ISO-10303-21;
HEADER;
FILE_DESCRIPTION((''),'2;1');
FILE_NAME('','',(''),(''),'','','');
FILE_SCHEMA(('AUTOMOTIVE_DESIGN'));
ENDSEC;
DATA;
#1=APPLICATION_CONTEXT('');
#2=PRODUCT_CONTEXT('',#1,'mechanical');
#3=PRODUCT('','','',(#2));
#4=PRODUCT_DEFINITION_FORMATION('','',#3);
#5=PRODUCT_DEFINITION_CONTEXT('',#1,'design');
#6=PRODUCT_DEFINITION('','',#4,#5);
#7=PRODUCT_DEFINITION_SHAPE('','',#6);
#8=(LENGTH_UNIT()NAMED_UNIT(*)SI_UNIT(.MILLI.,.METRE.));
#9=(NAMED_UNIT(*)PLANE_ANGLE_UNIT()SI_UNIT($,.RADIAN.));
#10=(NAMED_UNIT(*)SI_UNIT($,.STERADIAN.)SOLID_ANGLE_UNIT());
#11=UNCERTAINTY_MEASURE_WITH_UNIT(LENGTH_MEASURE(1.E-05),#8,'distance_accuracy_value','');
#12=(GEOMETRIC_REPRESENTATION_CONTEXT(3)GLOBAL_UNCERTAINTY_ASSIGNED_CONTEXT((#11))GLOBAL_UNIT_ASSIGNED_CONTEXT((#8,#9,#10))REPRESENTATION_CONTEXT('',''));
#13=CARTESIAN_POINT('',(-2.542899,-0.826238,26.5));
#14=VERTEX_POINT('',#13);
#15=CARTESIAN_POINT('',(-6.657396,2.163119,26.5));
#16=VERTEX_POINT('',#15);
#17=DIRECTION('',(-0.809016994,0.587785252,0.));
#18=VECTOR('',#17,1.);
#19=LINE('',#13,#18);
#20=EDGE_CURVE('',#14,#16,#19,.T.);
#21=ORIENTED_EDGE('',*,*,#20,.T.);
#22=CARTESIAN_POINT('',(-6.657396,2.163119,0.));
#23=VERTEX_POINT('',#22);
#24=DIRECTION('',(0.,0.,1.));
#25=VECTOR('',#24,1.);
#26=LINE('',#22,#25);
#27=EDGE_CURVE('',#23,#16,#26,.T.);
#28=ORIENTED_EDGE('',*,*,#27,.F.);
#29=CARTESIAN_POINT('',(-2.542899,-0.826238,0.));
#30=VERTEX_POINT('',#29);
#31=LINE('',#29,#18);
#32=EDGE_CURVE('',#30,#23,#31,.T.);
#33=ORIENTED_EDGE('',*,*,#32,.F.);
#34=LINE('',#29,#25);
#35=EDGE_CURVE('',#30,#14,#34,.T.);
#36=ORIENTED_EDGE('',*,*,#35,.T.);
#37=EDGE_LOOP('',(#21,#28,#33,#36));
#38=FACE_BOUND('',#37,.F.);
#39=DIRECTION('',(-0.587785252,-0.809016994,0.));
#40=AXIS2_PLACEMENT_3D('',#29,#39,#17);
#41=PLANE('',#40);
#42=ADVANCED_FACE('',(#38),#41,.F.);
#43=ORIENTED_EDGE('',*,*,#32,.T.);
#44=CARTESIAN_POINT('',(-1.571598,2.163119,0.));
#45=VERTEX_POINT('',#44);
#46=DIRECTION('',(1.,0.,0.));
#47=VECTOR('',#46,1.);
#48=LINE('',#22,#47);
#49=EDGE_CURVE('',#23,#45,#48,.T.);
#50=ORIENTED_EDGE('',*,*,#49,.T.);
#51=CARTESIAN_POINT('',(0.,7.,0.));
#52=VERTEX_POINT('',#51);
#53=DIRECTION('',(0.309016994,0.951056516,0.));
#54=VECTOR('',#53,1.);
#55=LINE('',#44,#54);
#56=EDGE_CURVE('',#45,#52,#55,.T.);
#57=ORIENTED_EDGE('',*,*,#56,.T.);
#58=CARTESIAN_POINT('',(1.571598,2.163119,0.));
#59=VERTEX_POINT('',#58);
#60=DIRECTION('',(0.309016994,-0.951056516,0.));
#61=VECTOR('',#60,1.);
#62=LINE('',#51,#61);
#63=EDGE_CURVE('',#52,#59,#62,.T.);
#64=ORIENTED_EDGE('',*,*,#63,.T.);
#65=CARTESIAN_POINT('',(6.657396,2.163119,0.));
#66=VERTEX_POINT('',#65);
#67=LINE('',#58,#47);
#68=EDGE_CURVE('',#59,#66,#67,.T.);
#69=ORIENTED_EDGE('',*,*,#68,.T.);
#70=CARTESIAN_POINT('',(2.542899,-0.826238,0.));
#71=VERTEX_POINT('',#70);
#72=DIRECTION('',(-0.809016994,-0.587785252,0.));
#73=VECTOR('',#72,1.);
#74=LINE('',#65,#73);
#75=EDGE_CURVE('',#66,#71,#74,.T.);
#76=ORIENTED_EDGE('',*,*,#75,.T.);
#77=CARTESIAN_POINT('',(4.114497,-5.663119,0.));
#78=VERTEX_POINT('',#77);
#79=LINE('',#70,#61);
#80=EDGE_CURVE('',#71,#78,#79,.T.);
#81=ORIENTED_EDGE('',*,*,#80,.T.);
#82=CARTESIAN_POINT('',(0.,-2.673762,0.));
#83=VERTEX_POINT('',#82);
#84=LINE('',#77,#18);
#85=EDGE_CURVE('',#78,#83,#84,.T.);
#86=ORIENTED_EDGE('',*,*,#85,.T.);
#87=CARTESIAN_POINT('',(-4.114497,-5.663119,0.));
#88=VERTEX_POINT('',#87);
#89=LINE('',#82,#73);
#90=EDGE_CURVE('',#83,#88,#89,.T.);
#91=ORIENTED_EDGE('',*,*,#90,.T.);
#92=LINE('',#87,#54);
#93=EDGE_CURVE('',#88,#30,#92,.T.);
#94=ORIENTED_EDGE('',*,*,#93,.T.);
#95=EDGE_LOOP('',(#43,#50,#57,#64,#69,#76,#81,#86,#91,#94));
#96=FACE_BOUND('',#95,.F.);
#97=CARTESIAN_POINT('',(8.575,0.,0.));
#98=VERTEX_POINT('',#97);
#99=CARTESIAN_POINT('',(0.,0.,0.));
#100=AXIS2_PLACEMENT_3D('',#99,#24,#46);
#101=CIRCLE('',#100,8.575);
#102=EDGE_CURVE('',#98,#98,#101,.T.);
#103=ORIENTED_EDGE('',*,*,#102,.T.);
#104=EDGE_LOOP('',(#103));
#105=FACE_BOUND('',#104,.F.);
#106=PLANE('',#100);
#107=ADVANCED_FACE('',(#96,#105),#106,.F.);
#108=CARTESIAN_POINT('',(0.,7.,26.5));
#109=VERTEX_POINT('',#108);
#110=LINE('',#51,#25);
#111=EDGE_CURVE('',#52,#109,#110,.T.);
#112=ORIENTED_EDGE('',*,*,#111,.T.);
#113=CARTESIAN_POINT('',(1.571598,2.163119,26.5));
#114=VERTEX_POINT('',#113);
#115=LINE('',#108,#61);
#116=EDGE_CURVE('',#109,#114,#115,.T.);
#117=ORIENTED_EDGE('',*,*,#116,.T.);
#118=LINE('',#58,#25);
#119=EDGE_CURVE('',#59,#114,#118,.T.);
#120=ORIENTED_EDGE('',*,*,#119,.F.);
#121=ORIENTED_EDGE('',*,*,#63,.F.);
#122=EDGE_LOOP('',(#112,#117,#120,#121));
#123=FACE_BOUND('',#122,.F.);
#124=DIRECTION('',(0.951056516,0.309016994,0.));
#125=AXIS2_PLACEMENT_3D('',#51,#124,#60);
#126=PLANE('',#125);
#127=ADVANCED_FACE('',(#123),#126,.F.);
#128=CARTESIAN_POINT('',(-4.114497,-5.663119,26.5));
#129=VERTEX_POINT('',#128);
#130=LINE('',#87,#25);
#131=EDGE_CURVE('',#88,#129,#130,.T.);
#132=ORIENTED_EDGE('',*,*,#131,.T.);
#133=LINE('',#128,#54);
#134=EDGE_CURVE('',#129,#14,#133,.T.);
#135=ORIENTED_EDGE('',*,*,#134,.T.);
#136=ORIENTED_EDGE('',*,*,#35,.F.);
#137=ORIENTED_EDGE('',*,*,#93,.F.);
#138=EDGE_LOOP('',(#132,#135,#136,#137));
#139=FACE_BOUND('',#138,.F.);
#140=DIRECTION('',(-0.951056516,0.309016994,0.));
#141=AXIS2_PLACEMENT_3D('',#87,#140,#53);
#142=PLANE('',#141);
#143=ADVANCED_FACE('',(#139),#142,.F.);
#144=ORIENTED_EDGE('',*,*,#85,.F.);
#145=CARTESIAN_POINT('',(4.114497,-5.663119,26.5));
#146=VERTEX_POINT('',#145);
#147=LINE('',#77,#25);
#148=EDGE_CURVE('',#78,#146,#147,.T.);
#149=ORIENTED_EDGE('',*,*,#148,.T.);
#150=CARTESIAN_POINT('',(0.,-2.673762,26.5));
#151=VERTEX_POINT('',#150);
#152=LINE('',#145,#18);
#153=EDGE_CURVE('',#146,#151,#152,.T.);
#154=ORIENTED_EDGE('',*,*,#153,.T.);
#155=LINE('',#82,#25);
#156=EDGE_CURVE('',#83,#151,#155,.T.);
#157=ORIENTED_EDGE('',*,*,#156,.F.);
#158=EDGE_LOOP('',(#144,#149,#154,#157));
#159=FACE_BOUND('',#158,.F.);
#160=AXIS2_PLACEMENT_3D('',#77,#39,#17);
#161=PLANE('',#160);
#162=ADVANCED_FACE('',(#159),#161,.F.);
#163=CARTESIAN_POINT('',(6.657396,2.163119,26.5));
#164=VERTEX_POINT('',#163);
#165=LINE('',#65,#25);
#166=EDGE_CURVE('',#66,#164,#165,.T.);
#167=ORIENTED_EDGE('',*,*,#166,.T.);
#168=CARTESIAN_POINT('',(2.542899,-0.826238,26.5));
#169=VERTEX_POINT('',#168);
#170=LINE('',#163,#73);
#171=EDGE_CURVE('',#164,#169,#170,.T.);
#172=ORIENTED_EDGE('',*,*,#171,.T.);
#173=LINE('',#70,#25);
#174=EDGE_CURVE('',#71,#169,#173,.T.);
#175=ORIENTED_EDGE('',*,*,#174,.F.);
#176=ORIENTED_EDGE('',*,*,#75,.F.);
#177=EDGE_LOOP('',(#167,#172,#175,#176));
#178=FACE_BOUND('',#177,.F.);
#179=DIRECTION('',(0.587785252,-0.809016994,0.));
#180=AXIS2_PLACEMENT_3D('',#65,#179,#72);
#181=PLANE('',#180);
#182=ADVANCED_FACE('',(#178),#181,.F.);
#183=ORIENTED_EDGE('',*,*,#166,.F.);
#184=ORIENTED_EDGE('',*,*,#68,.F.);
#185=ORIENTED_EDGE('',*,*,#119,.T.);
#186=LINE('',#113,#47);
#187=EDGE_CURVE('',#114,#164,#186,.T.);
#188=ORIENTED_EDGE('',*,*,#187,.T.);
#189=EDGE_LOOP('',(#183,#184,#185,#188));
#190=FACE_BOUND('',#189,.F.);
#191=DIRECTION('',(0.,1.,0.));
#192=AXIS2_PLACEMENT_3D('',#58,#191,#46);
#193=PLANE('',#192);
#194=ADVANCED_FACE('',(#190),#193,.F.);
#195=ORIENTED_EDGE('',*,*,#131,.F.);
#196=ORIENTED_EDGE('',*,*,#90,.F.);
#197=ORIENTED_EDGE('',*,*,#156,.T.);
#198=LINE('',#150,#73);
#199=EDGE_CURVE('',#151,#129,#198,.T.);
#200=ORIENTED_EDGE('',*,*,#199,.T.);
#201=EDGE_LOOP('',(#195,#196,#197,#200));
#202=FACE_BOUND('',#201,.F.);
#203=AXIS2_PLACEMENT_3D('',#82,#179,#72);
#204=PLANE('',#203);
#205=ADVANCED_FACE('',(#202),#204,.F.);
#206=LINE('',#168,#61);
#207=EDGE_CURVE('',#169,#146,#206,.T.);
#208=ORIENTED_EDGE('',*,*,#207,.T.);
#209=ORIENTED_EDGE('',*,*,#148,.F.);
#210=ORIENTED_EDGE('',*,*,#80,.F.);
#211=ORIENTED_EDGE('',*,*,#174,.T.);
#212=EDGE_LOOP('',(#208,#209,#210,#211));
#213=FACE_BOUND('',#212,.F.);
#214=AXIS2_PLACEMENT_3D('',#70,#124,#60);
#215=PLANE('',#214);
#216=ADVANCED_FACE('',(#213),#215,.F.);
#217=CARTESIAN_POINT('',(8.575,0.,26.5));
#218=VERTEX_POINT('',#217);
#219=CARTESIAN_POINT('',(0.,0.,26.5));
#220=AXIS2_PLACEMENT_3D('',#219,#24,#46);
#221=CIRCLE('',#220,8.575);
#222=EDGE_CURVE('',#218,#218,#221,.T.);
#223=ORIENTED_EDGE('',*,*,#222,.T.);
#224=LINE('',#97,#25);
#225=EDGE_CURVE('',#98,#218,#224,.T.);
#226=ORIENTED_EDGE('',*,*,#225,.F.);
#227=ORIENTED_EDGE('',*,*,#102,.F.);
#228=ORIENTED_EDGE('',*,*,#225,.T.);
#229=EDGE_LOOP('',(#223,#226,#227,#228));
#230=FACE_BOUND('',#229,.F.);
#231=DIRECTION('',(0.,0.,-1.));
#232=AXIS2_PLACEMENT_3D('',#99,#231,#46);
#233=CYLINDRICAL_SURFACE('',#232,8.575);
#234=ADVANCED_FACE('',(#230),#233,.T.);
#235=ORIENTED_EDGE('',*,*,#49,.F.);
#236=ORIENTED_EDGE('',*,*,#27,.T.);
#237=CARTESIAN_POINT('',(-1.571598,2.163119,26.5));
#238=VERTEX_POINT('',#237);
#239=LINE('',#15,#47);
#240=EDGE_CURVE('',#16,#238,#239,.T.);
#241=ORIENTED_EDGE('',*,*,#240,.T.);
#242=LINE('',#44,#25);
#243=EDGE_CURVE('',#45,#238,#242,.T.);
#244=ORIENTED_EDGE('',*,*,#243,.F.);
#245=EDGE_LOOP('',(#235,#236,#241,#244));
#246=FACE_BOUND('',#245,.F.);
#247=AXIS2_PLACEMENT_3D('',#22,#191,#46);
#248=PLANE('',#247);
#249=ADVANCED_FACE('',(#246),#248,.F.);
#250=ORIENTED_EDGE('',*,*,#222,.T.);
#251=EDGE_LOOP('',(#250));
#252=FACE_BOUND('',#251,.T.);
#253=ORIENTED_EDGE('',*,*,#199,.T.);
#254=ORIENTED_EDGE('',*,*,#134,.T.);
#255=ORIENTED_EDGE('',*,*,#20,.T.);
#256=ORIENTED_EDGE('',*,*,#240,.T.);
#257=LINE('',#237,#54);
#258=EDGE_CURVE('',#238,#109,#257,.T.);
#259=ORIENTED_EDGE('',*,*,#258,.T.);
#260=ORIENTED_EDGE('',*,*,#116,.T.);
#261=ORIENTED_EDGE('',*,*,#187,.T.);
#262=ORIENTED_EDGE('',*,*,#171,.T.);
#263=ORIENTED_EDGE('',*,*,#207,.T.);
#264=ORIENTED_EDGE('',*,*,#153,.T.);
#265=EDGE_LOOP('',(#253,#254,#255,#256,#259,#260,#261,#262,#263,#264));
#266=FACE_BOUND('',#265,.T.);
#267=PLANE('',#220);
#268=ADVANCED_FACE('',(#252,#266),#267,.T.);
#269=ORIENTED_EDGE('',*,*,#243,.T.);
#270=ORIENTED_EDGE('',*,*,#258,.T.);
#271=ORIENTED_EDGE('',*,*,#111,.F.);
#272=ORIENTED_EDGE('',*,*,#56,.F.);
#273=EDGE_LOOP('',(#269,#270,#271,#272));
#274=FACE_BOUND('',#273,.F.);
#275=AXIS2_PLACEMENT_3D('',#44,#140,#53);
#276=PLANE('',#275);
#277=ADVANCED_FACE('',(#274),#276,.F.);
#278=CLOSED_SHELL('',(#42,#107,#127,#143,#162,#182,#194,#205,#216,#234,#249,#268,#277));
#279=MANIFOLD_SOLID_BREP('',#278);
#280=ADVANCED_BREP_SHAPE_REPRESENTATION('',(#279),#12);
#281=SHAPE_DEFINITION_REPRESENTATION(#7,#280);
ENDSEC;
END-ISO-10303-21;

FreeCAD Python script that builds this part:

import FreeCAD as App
import Part
import Sketcher

V = App.Vector
Q = App.Units.Quantity

doc = App.newDocument("Part")
body = doc.addObject("PartDesign::Body", "Body")

# Sketch on XY plane
sketch1 = body.newObject("Sketcher::SketchObject", "Sketch")
sketch1.AttachmentSupport = (doc.getObject("XY_Plane"), [""])
sketch1.MapMode = "FlatFace"
sketch1.addGeometry(Part.Circle(V(0, 0, 0), V(0, 0, 1), 9), False)
sketch1.addConstraint(Sketcher.Constraint("Coincident", 0, 3, -1, 1))
sketch1.addConstraint(Sketcher.Constraint("Diameter", 0, Q("17.15 mm")))
pad1 = body.newObject("PartDesign::Pad", "Pad")
pad1.Profile = sketch1
pad1.Length = 26.5

# Sketch on XY plane
sketch2 = body.newObject("Sketcher::SketchObject", "Sketch001")
sketch2.AttachmentSupport = (doc.getObject("XY_Plane"), [""])
sketch2.MapMode = "FlatFace"
sketch2.addGeometry(Part.LineSegment(V(0, -3, 0), V(-4, -6, 0)), False)
sketch2.addGeometry(Part.LineSegment(V(-4, -6, 0), V(-3, -1, 0)), False)
sketch2.addGeometry(Part.LineSegment(V(-3, -1, 0), V(-7, 2, 0)), False)
sketch2.addGeometry(Part.LineSegment(V(-7, 2, 0), V(-2, 2, 0)), False)
sketch2.addGeometry(Part.LineSegment(V(-2, 2, 0), V(0, 7, 0)), False)
sketch2.addGeometry(Part.LineSegment(V(0, 7, 0), V(2, 2, 0)), False)
sketch2.addGeometry(Part.LineSegment(V(2, 2, 0), V(7, 2, 0)), False)
sketch2.addGeometry(Part.LineSegment(V(7, 2, 0), V(3, -1, 0)), False)
sketch2.addGeometry(Part.LineSegment(V(3, -1, 0), V(4, -6, 0)), False)
sketch2.addGeometry(Part.LineSegment(V(4, -6, 0), V(0, -3, 0)), False)
sketch2.addConstraint(Sketcher.Constraint("Coincident", 0, 2, 1, 1))
sketch2.addConstraint(Sketcher.Constraint("Coincident", 1, 2, 2, 1))
sketch2.addConstraint(Sketcher.Constraint("Coincident", 2, 2, 3, 1))
sketch2.addConstraint(Sketcher.Constraint("Coincident", 3, 2, 4, 1))
sketch2.addConstraint(Sketcher.Constraint("Coincident", 4, 2, 5, 1))
sketch2.addConstraint(Sketcher.Constraint("Coincident", 5, 2, 6, 1))
sketch2.addConstraint(Sketcher.Constraint("Coincident", 6, 2, 7, 1))
sketch2.addConstraint(Sketcher.Constraint("Coincident", 7, 2, 8, 1))
sketch2.addConstraint(Sketcher.Constraint("Coincident", 8, 2, 9, 1))
sketch2.addConstraint(Sketcher.Constraint("Coincident", 9, 2, 0, 1))
sketch2.addConstraint(Sketcher.Constraint("Horizontal", 3))
sketch2.addConstraint(Sketcher.Constraint("Horizontal", 6))
sketch2.addConstraint(Sketcher.Constraint("Symmetric", 3, 2, 5, 2, -2))
sketch2.addConstraint(Sketcher.Constraint("Symmetric", 1, 2, 7, 2, -2))
sketch2.addConstraint(Sketcher.Constraint("Symmetric", 0, 2, 8, 2, -2))
sketch2.addConstraint(Sketcher.Constraint("PointOnObject", 4, 2, -2))
sketch2.addConstraint(Sketcher.Constraint("PointOnObject", 9, 2, -2))
sketch2.addConstraint(Sketcher.Constraint("Parallel", 1, 4))
sketch2.addConstraint(Sketcher.Constraint("Parallel", 0, 7))
sketch2.addConstraint(Sketcher.Constraint("Parallel", 2, 9))
sketch2.addConstraint(Sketcher.Constraint("Equal", 0, 1))
sketch2.addConstraint(Sketcher.Constraint("Equal", 1, 2))
sketch2.addConstraint(Sketcher.Constraint("Equal", 2, 4))
sketch2.addConstraint(Sketcher.Constraint("Angle", 0, Q("-144 deg")))
sketch2.addConstraint(Sketcher.Constraint("Angle", 1, Q("72 deg")))
sketch2.addConstraint(Sketcher.Constraint("DistanceY", -1, 1, 4, 2, Q("7 mm")))
sketch2.addConstraint(Sketcher.Constraint("DistanceX", 1, 2, -1, 1, Q("2.542899 mm")))
pocket1 = body.newObject("PartDesign::Pocket", "Pocket")
pocket1.Profile = sketch2
pocket1.Length = 26.5
pocket1.Reversed = True

doc.recompute()
